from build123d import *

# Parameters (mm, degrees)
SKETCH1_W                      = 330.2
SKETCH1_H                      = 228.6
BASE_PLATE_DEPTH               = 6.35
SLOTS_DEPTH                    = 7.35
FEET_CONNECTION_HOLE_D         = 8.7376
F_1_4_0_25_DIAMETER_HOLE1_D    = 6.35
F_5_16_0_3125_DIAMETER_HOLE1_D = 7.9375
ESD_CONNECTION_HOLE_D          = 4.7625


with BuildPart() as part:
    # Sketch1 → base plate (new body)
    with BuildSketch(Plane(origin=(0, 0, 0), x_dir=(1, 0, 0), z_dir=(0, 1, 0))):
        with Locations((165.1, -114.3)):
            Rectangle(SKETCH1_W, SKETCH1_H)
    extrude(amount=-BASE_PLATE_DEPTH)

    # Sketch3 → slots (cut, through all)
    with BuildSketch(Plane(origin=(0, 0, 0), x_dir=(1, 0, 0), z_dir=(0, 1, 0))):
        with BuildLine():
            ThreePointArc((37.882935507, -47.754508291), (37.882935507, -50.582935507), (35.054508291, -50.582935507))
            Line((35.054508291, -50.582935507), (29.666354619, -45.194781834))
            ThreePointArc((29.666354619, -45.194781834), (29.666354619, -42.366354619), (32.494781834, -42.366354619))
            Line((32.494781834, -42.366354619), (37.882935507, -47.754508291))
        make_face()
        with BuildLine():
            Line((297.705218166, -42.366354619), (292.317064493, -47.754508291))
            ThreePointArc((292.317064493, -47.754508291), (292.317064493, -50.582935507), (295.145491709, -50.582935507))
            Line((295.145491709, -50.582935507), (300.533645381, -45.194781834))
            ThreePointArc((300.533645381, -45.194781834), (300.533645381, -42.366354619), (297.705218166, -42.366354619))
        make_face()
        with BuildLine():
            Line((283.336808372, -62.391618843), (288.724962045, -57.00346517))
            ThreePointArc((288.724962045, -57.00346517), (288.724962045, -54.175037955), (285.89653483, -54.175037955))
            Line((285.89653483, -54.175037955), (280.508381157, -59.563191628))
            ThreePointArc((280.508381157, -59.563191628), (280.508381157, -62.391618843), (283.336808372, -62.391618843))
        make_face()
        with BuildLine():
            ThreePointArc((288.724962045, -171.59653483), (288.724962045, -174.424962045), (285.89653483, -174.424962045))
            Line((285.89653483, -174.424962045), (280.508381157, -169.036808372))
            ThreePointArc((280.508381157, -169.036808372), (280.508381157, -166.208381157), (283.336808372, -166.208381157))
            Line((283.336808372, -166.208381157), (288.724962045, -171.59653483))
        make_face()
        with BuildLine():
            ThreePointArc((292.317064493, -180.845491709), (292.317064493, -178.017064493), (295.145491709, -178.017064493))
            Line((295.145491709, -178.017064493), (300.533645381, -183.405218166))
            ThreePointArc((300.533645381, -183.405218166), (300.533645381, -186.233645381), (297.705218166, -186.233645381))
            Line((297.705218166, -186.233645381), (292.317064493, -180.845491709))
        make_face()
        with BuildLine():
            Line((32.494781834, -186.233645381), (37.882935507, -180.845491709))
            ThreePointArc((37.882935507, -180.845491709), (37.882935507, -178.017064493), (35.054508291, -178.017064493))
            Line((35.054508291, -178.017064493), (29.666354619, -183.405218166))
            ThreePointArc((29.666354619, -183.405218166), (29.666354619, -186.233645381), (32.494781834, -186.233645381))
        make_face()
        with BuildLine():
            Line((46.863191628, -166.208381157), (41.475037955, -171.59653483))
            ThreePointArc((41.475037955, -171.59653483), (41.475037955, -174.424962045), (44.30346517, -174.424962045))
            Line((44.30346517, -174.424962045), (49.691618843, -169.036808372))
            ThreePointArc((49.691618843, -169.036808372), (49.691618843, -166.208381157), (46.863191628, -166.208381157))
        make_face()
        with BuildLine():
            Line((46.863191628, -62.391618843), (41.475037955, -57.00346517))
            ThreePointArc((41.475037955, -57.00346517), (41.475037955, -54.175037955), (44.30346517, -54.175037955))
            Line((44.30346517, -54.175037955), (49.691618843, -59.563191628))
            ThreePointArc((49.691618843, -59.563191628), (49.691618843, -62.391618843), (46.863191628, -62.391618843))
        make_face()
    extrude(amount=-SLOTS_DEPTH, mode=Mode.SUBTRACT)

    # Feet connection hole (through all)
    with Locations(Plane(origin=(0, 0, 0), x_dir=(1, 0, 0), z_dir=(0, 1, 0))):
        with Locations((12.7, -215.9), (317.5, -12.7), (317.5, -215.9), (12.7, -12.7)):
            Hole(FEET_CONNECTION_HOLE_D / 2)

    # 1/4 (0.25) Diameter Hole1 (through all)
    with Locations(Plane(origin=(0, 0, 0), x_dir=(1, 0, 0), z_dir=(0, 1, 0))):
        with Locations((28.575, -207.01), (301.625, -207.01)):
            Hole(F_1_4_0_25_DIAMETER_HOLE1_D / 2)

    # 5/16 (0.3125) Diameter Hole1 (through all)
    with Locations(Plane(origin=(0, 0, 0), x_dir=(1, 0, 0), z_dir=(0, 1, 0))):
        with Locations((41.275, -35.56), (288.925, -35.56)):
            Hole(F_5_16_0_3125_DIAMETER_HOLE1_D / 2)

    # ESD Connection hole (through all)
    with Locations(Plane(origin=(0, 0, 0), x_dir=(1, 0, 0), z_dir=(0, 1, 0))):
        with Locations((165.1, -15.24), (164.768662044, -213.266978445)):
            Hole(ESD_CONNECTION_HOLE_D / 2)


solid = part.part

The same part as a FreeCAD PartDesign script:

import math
import FreeCAD as App
import Part
import Sketcher
from FreeCAD import Vector
Q = App.Units.Quantity


def add_polygon(sketch, points):
    """Adds a closed chain of lines whose ends are joined by coincident constraints."""
    first, n = sketch.GeometryCount, len(points)
    for a, b in zip(points, points[1:] + points[:1]):
        sketch.addGeometry(Part.LineSegment(App.Vector(*a, 0), App.Vector(*b, 0)), False)
    for i in range(n):
        sketch.addConstraint(Sketcher.Constraint("Coincident", first + i, 2, first + (i + 1) % n, 1))

doc = App.newDocument("Part")
params = doc.addObject("Spreadsheet::Sheet", "Params")
for row, (alias, value) in enumerate([
    ("sketch1_width", "13 in"),
    ("sketch1_height", "9 in"),
    ("pad1_length", "0.25 in"),
    ("sketch2_length", "0.3 in"),
    ("sketch3_diameter", "0.344 in"),
    ("hole_diameter", "0.344 in"),
    ("sketch4_diameter", "0.25 in"),
    ("hole2_diameter", "0.25 in"),
    ("sketch5_diameter", "0.3125 in"),
    ("hole3_diameter", "0.3125 in"),
    ("sketch6_diameter", "0.1875 in"),
    ("hole4_diameter", "0.1875 in"),
], start=1):
    params.set(f"A{row}", alias)
    params.set(f"B{row}", "=" + value)
    params.setAlias(f"B{row}", alias)

body = doc.addObject("PartDesign::Body", "Body")

sketch1 = body.newObject("Sketcher::SketchObject", "Sketch")
sketch1.AttachmentSupport = (doc.getObject("XZ_Plane"), [""])
sketch1.MapMode = "FlatFace"
add_polygon(sketch1, [(0, 0), (0, 228.6), (330.2, 228.6), (330.2, 0)])
sketch1.addConstraint(Sketcher.Constraint("Vertical", 0))
sketch1.addConstraint(Sketcher.Constraint("Horizontal", 1))
sketch1.addConstraint(Sketcher.Constraint("Vertical", 2))
sketch1.addConstraint(Sketcher.Constraint("Horizontal", 3))
sketch1.addConstraint(Sketcher.Constraint("Coincident", 3, 2, -1, 1))
sketch1.addConstraint(Sketcher.Constraint("DistanceX", 1, 1, 1, 2, Q("13 in")))
sketch1.addConstraint(Sketcher.Constraint("DistanceY", 0, 1, 0, 2, Q("9 in")))
sketch1.setExpression("Constraints[9]", "Params.sketch1_width")
sketch1.setExpression("Constraints[10]", "Params.sketch1_height")
pad1 = body.newObject("PartDesign::Pad", "Pad")
pad1.Profile = sketch1
pad1.setExpression("Length", "Params.pad1_length")

sketch2 = body.newObject("Sketcher::SketchObject", "Sketch001")
sketch2.AttachmentSupport = (doc.getObject("XZ_Plane"), [""])
sketch2.MapMode = "FlatFace"
sketch2.addGeometry(Part.ArcOfCircle(Part.Circle(Vector(36.468722, 49.168722, 0), Vector(0, 0, 1), 2), math.radians(-45), math.radians(135)), False)
sketch2.addGeometry(Part.LineSegment(Vector(37.882936, 47.754508, 0), Vector(32.494782, 42.366355, 0)), False)
sketch2.addGeometry(Part.ArcOfCircle(Part.Circle(Vector(31.080568, 43.780568, 0), Vector(0, 0, 1), 2), math.radians(135), math.radians(315)), False)
sketch2.addGeometry(Part.LineSegment(Vector(29.666355, 45.194782, 0), Vector(35.054508, 50.582936, 0)), False)
sketch2.addGeometry(Part.LineSegment(Vector(297.705218, 42.366355, 0), Vector(292.317064, 47.754508, 0)), False)
sketch2.addGeometry(Part.ArcOfCircle(Part.Circle(Vector(293.731278, 49.168722, 0), Vector(0, 0, 1), 2), math.radians(45), math.radians(225)), False)
sketch2.addGeometry(Part.LineSegment(Vector(295.145492, 50.582936, 0), Vector(300.533645, 45.194782, 0)), False)
sketch2.addGeometry(Part.ArcOfCircle(Part.Circle(Vector(299.119432, 43.780568, 0), Vector(0, 0, 1), 2), math.radians(-135), math.radians(45)), False)
sketch2.addGeometry(Part.LineSegment(Vector(283.336808, 62.391619, 0), Vector(288.724962, 57.003465, 0)), False)
sketch2.addGeometry(Part.ArcOfCircle(Part.Circle(Vector(287.310748, 55.589252, 0), Vector(0, 0, 1), 2), math.radians(-135), math.radians(45)), False)
sketch2.addGeometry(Part.LineSegment(Vector(285.896535, 54.175038, 0), Vector(280.508381, 59.563192, 0)), False)
sketch2.addGeometry(Part.ArcOfCircle(Part.Circle(Vector(281.922595, 60.977405, 0), Vector(0, 0, 1), 2), math.radians(45), math.radians(225)), False)
sketch2.addGeometry(Part.ArcOfCircle(Part.Circle(Vector(287.310748, 173.010748, 0), Vector(0, 0, 1), 2), math.radians(-45), math.radians(135)), False)
sketch2.addGeometry(Part.LineSegment(Vector(288.724962, 171.596535, 0), Vector(283.336808, 166.208381, 0)), False)
sketch2.addGeometry(Part.ArcOfCircle(Part.Circle(Vector(281.922595, 167.622595, 0), Vector(0, 0, 1), 2), math.radians(135), math.radians(315)), False)
sketch2.addGeometry(Part.LineSegment(Vector(280.508381, 169.036808, 0), Vector(285.896535, 174.424962, 0)), False)
sketch2.addGeometry(Part.ArcOfCircle(Part.Circle(Vector(293.731278, 179.431278, 0), Vector(0, 0, 1), 2), math.radians(135), math.radians(315)), False)
sketch2.addGeometry(Part.LineSegment(Vector(292.317064, 180.845492, 0), Vector(297.705218, 186.233645, 0)), False)
sketch2.addGeometry(Part.ArcOfCircle(Part.Circle(Vector(299.119432, 184.819432, 0), Vector(0, 0, 1), 2), math.radians(-45), math.radians(135)), False)
sketch2.addGeometry(Part.LineSegment(Vector(300.533645, 183.405218, 0), Vector(295.145492, 178.017064, 0)), False)
sketch2.addGeometry(Part.LineSegment(Vector(32.494782, 186.233645, 0), Vector(37.882936, 180.845492, 0)), False)
sketch2.addGeometry(Part.ArcOfCircle(Part.Circle(Vector(36.468722, 179.431278, 0), Vector(0, 0, 1), 2), math.radians(-135), math.radians(45)), False)
sketch2.addGeometry(Part.LineSegment(Vector(35.054508, 178.017064, 0), Vector(29.666355, 183.405218, 0)), False)
sketch2.addGeometry(Part.ArcOfCircle(Part.Circle(Vector(31.080568, 184.819432, 0), Vector(0, 0, 1), 2), math.radians(45), math.radians(225)), False)
sketch2.addGeometry(Part.LineSegment(Vector(46.863192, 166.208381, 0), Vector(41.475038, 171.596535, 0)), False)
sketch2.addGeometry(Part.ArcOfCircle(Part.Circle(Vector(42.889252, 173.010748, 0), Vector(0, 0, 1), 2), math.radians(45), math.radians(225)), False)
sketch2.addGeometry(Part.LineSegment(Vector(44.303465, 174.424962, 0), Vector(49.691619, 169.036808, 0)), False)
sketch2.addGeometry(Part.ArcOfCircle(Part.Circle(Vector(48.277405, 167.622595, 0), Vector(0, 0, 1), 2), math.radians(-135), math.radians(45)), False)
sketch2.addGeometry(Part.LineSegment(Vector(41.475038, 57.003465, 0), Vector(46.863192, 62.391619, 0)), False)
sketch2.addGeometry(Part.ArcOfCircle(Part.Circle(Vector(48.277405, 60.977405, 0), Vector(0, 0, 1), 2), math.radians(-45), math.radians(135)), False)
sketch2.addGeometry(Part.LineSegment(Vector(49.691619, 59.563192, 0), Vector(44.303465, 54.175038, 0)), False)
sketch2.addGeometry(Part.ArcOfCircle(Part.Circle(Vector(42.889252, 55.589252, 0), Vector(0, 0, 1), 2), math.radians(135), math.radians(315)), False)
sketch2.addConstraint(Sketcher.Constraint("Tangent", 0, 1, 1, 1))
sketch2.addConstraint(Sketcher.Constraint("Tangent", 1, 2, 2, 2))
sketch2.addConstraint(Sketcher.Constraint("Tangent", 2, 1, 3, 1))
sketch2.addConstraint(Sketcher.Constraint("Tangent", 3, 2, 0, 2))
sketch2.addConstraint(Sketcher.Constraint("Tangent", 4, 2, 5, 2))
sketch2.addConstraint(Sketcher.Constraint("Tangent", 5, 1, 6, 1))
sketch2.addConstraint(Sketcher.Constraint("Tangent", 6, 2, 7, 2))
sketch2.addConstraint(Sketcher.Constraint("Tangent", 7, 1, 4, 1))
sketch2.addConstraint(Sketcher.Constraint("Tangent", 8, 2, 9, 2))
sketch2.addConstraint(Sketcher.Constraint("Tangent", 9, 1, 10, 1))
sketch2.addConstraint(Sketcher.Constraint("Tangent", 10, 2, 11, 2))
sketch2.addConstraint(Sketcher.Constraint("Tangent", 11, 1, 8, 1))
sketch2.addConstraint(Sketcher.Constraint("Tangent", 12, 1, 13, 1))
sketch2.addConstraint(Sketcher.Constraint("Tangent", 13, 2, 14, 2))
sketch2.addConstraint(Sketcher.Constraint("Tangent", 14, 1, 15, 1))
sketch2.addConstraint(Sketcher.Constraint("Tangent", 15, 2, 12, 2))
sketch2.addConstraint(Sketcher.Constraint("Tangent", 16, 1, 17, 1))
sketch2.addConstraint(Sketcher.Constraint("Tangent", 17, 2, 18, 2))
sketch2.addConstraint(Sketcher.Constraint("Tangent", 18, 1, 19, 1))
sketch2.addConstraint(Sketcher.Constraint("Tangent", 19, 2, 16, 2))
sketch2.addConstraint(Sketcher.Constraint("Tangent", 20, 2, 21, 2))
sketch2.addConstraint(Sketcher.Constraint("Tangent", 21, 1, 22, 1))
sketch2.addConstraint(Sketcher.Constraint("Tangent", 22, 2, 23, 2))
sketch2.addConstraint(Sketcher.Constraint("Tangent", 23, 1, 20, 1))
sketch2.addConstraint(Sketcher.Constraint("Tangent", 24, 2, 25, 2))
sketch2.addConstraint(Sketcher.Constraint("Tangent", 25, 1, 26, 1))
sketch2.addConstraint(Sketcher.Constraint("Tangent", 26, 2, 27, 2))
sketch2.addConstraint(Sketcher.Constraint("Tangent", 27, 1, 24, 1))
sketch2.addConstraint(Sketcher.Constraint("Tangent", 28, 2, 29, 2))
sketch2.addConstraint(Sketcher.Constraint("Tangent", 29, 1, 30, 1))
sketch2.addConstraint(Sketcher.Constraint("Tangent", 30, 2, 31, 2))
sketch2.addConstraint(Sketcher.Constraint("Tangent", 31, 1, 28, 1))
sketch2.addConstraint(Sketcher.Constraint("Equal", 0, 2))
sketch2.addConstraint(Sketcher.Constraint("Equal", 2, 5))
sketch2.addConstraint(Sketcher.Constraint("Equal", 5, 7))
sketch2.addConstraint(Sketcher.Constraint("Equal", 7, 9))
sketch2.addConstraint(Sketcher.Constraint("Equal", 9, 11))
sketch2.addConstraint(Sketcher.Constraint("Equal", 11, 12))
sketch2.addConstraint(Sketcher.Constraint("Equal", 12, 14))
sketch2.addConstraint(Sketcher.Constraint("Equal", 14, 16))
sketch2.addConstraint(Sketcher.Constraint("Equal", 16, 18))
sketch2.addConstraint(Sketcher.Constraint("Equal", 18, 21))
sketch2.addConstraint(Sketcher.Constraint("Equal", 21, 23))
sketch2.addConstraint(Sketcher.Constraint("Equal", 23, 25))
sketch2.addConstraint(Sketcher.Constraint("Equal", 25, 27))
sketch2.addConstraint(Sketcher.Constraint("Equal", 27, 29))
sketch2.addConstraint(Sketcher.Constraint("Equal", 29, 31))
sketch2.addConstraint(Sketcher.Constraint("Perpendicular", 3, 4))
sketch2.addConstraint(Sketcher.Constraint("Parallel", 6, 8))
sketch2.addConstraint(Sketcher.Constraint("Perpendicular", 10, 13))
sketch2.addConstraint(Sketcher.Constraint("Parallel", 15, 17))
sketch2.addConstraint(Sketcher.Constraint("Perpendicular", 19, 20))
sketch2.addConstraint(Sketcher.Constraint("Parallel", 22, 24))
sketch2.addConstraint(Sketcher.Constraint("Perpendicular", 26, 28))
sketch2.addConstraint(Sketcher.Constraint("Horizontal", 0, 3, 5, 3))
sketch2.addConstraint(Sketcher.Constraint("Horizontal", 2, 3, 7, 3))
sketch2.addConstraint(Sketcher.Constraint("Horizontal", 16, 3, 21, 3))
sketch2.addConstraint(Sketcher.Constraint("Horizontal", 18, 3, 23, 3))
sketch2.addConstraint(Sketcher.Constraint("Horizontal", 12, 3, 25, 3))
sketch2.addConstraint(Sketcher.Constraint("Horizontal", 14, 3, 27, 3))
sketch2.addConstraint(Sketcher.Constraint("Horizontal", 11, 3, 29, 3))
sketch2.addConstraint(Sketcher.Constraint("Horizontal", 9, 3, 31, 3))
sketch2.addConstraint(Sketcher.Constraint("Horizontal", 0, 1, 4, 2))
sketch2.addConstraint(Sketcher.Constraint("Vertical", 9, 3, 12, 3))
sketch2.addConstraint(Sketcher.Constraint("Vertical", 11, 3, 14, 3))
sketch2.addConstraint(Sketcher.Constraint("Vertical", 5, 3, 16, 3))
sketch2.addConstraint(Sketcher.Constraint("Vertical", 7, 3, 18, 3))
sketch2.addConstraint(Sketcher.Constraint("Vertical", 0, 3, 21, 3))
sketch2.addConstraint(Sketcher.Constraint("Vertical", 27, 3, 29, 3))
sketch2.addConstraint(Sketcher.Constraint("Equal", 6, 8))
sketch2.addConstraint(Sketcher.Constraint("Distance", 1, Q("0.3 in")))
sketch2.addConstraint(Sketcher.Constraint("Radius", 0, Q("2 mm")))
sketch2.addConstraint(Sketcher.Constraint("DistanceX", -1, 1, 0, 3, Q("36.468722 mm")))
sketch2.addConstraint(Sketcher.Constraint("DistanceY", -1, 1, 0, 3, Q("49.168722 mm")))
sketch2.addConstraint(Sketcher.Constraint("DistanceX", -1, 1, 5, 3, Q("293.731278 mm")))
sketch2.addConstraint(Sketcher.Constraint("DistanceX", -1, 1, 9, 3, Q("287.310748 mm")))
sketch2.addConstraint(Sketcher.Constraint("DistanceY", -1, 1, 9, 3, Q("55.589252 mm")))
sketch2.addConstraint(Sketcher.Constraint("DistanceY", -1, 1, 12, 3, Q("173.010748 mm")))
sketch2.addConstraint(Sketcher.Constraint("DistanceY", -1, 1, 16, 3, Q("179.431278 mm")))
sketch2.addConstraint(Sketcher.Constraint("DistanceX", -1, 1, 25, 3, Q("42.889252 mm")))
sketch2.setExpression("Constraints[70]", "Params.sketch2_length")
pocket1 = body.newObject("PartDesign::Pocket", "Pocket")
pocket1.Profile = sketch2
pocket1.Type = "ThroughAll"
pocket1.Reversed = True

sketch3 = body.newObject("Sketcher::SketchObject", "Sketch002")
sketch3.AttachmentSupport = (doc.getObject("XZ_Plane"), [""])
sketch3.MapMode = "FlatFace"
sketch3.addGeometry(Part.Circle(Vector(12.7, 215.9, 0), Vector(0, 0, 1), 4.3688), False)
sketch3.addGeometry(Part.Circle(Vector(317.5, 12.7, 0), Vector(0, 0, 1), 4.3688), False)
sketch3.addGeometry(Part.Circle(Vector(317.5, 215.9, 0), Vector(0, 0, 1), 4.3688), False)
sketch3.addGeometry(Part.Circle(Vector(12.7, 12.7, 0), Vector(0, 0, 1), 4.3688), False)
sketch3.addConstraint(Sketcher.Constraint("Equal", 0, 1))
sketch3.addConstraint(Sketcher.Constraint("Equal", 1, 2))
sketch3.addConstraint(Sketcher.Constraint("Equal", 2, 3))
sketch3.addConstraint(Sketcher.Constraint("Horizontal", 0, 3, 2, 3))
sketch3.addConstraint(Sketcher.Constraint("Horizontal", 1, 3, 3, 3))
sketch3.addConstraint(Sketcher.Constraint("Vertical", 1, 3, 2, 3))
sketch3.addConstraint(Sketcher.Constraint("Vertical", 0, 3, 3, 3))
sketch3.addConstraint(Sketcher.Constraint("Diameter", 0, Q("0.344 in")))
sketch3.addConstraint(Sketcher.Constraint("DistanceX", 0, 3, 1, 3, Q("12 in")))
sketch3.addConstraint(Sketcher.Constraint("DistanceY", 1, 3, 0, 3, Q("8 in")))
sketch3.addConstraint(Sketcher.Constraint("DistanceX", -1, 1, 0, 3, Q("0.5 in")))
sketch3.addConstraint(Sketcher.Constraint("DistanceY", -1, 1, 0, 3, Q("8.5 in")))
sketch3.setExpression("Constraints[7]", "Params.sketch3_diameter")
doc.recompute()
hole = body.newObject("PartDesign::Hole", "Hole")
hole.Profile = sketch3
hole.ThreadType = "None"
hole.setExpression("Diameter", "Params.hole_diameter")
hole.DepthType = "ThroughAll"
hole.Reversed = True

sketch4 = body.newObject("Sketcher::SketchObject", "Sketch003")
sketch4.AttachmentSupport = (doc.getObject("XZ_Plane"), [""])
sketch4.MapMode = "FlatFace"
sketch4.addGeometry(Part.Circle(Vector(28.575, 207.01, 0), Vector(0, 0, 1), 3.175), False)
sketch4.addGeometry(Part.Circle(Vector(301.625, 207.01, 0), Vector(0, 0, 1), 3.175), False)
sketch4.addConstraint(Sketcher.Constraint("Equal", 0, 1))
sketch4.addConstraint(Sketcher.Constraint("Horizontal", 0, 3, 1, 3))
sketch4.addConstraint(Sketcher.Constraint("Diameter", 0, Q("0.25 in")))
sketch4.addConstraint(Sketcher.Constraint("DistanceY", -1, 1, 0, 3, Q("8.15 in")))
sketch4.addConstraint(Sketcher.Constraint("DistanceX", 0, 3, 1, 3, Q("10.75 in")))
sketch4.addConstraint(Sketcher.Constraint("DistanceX", -1, 1, 0, 3, Q("1.125 in")))
sketch4.setExpression("Constraints[2]", "Params.sketch4_diameter")
doc.recompute()
hole2 = body.newObject("PartDesign::Hole", "Hole001")
hole2.Profile = sketch4
hole2.ThreadType = "None"
hole2.setExpression("Diameter", "Params.hole2_diameter")
hole2.DepthType = "ThroughAll"
hole2.Reversed = True

sketch5 = body.newObject("Sketcher::SketchObject", "Sketch004")
sketch5.AttachmentSupport = (doc.getObject("XZ_Plane"), [""])
sketch5.MapMode = "FlatFace"
sketch5.addGeometry(Part.Circle(Vector(41.275, 35.56, 0), Vector(0, 0, 1), 3.96875), False)
sketch5.addGeometry(Part.Circle(Vector(288.925, 35.56, 0), Vector(0, 0, 1), 3.96875), False)
sketch5.addConstraint(Sketcher.Constraint("Equal", 0, 1))
sketch5.addConstraint(Sketcher.Constraint("Horizontal", 0, 3, 1, 3))
sketch5.addConstraint(Sketcher.Constraint("Diameter", 0, Q("0.3125 in")))
sketch5.addConstraint(Sketcher.Constraint("DistanceY", -1, 1, 0, 3, Q("1.4 in")))
sketch5.addConstraint(Sketcher.Constraint("DistanceX", 0, 3, 1, 3, Q("9.75 in")))
sketch5.addConstraint(Sketcher.Constraint("DistanceX", -1, 1, 0, 3, Q("1.625 in")))
sketch5.setExpression("Constraints[2]", "Params.sketch5_diameter")
doc.recompute()
hole3 = body.newObject("PartDesign::Hole", "Hole002")
hole3.Profile = sketch5
hole3.ThreadType = "None"
hole3.setExpression("Diameter", "Params.hole3_diameter")
hole3.DepthType = "ThroughAll"
hole3.Reversed = True

sketch6 = body.newObject("Sketcher::SketchObject", "Sketch005")
sketch6.AttachmentSupport = (doc.getObject("XZ_Plane"), [""])
sketch6.MapMode = "FlatFace"
sketch6.addGeometry(Part.Circle(Vector(165.1, 15.24, 0), Vector(0, 0, 1), 2.38125), False)
sketch6.addGeometry(Part.Circle(Vector(164.768662, 213.266978, 0), Vector(0, 0, 1), 2.38125), False)
sketch6.addConstraint(Sketcher.Constraint("Equal", 0, 1))
sketch6.addConstraint(Sketcher.Constraint("Diameter", 0, Q("0.1875 in")))
sketch6.addConstraint(Sketcher.Constraint("DistanceX", -1, 1, 0, 3, Q("6.5 in")))
sketch6.addConstraint(Sketcher.Constraint("DistanceY", -1, 1, 0, 3, Q("0.6 in")))
sketch6.addConstraint(Sketcher.Constraint("DistanceY", -1, 1, 1, 3, Q("213.266978 mm")))
sketch6.addConstraint(Sketcher.Constraint("DistanceX", -1, 1, 1, 3, Q("164.768662 mm")))
sketch6.setExpression("Constraints[1]", "Params.sketch6_diameter")
doc.recompute()
hole4 = body.newObject("PartDesign::Hole", "Hole003")
hole4.Profile = sketch6
hole4.ThreadType = "None"
hole4.setExpression("Diameter", "Params.hole4_diameter")
hole4.DepthType = "ThroughAll"
hole4.Reversed = True

doc.recompute()
